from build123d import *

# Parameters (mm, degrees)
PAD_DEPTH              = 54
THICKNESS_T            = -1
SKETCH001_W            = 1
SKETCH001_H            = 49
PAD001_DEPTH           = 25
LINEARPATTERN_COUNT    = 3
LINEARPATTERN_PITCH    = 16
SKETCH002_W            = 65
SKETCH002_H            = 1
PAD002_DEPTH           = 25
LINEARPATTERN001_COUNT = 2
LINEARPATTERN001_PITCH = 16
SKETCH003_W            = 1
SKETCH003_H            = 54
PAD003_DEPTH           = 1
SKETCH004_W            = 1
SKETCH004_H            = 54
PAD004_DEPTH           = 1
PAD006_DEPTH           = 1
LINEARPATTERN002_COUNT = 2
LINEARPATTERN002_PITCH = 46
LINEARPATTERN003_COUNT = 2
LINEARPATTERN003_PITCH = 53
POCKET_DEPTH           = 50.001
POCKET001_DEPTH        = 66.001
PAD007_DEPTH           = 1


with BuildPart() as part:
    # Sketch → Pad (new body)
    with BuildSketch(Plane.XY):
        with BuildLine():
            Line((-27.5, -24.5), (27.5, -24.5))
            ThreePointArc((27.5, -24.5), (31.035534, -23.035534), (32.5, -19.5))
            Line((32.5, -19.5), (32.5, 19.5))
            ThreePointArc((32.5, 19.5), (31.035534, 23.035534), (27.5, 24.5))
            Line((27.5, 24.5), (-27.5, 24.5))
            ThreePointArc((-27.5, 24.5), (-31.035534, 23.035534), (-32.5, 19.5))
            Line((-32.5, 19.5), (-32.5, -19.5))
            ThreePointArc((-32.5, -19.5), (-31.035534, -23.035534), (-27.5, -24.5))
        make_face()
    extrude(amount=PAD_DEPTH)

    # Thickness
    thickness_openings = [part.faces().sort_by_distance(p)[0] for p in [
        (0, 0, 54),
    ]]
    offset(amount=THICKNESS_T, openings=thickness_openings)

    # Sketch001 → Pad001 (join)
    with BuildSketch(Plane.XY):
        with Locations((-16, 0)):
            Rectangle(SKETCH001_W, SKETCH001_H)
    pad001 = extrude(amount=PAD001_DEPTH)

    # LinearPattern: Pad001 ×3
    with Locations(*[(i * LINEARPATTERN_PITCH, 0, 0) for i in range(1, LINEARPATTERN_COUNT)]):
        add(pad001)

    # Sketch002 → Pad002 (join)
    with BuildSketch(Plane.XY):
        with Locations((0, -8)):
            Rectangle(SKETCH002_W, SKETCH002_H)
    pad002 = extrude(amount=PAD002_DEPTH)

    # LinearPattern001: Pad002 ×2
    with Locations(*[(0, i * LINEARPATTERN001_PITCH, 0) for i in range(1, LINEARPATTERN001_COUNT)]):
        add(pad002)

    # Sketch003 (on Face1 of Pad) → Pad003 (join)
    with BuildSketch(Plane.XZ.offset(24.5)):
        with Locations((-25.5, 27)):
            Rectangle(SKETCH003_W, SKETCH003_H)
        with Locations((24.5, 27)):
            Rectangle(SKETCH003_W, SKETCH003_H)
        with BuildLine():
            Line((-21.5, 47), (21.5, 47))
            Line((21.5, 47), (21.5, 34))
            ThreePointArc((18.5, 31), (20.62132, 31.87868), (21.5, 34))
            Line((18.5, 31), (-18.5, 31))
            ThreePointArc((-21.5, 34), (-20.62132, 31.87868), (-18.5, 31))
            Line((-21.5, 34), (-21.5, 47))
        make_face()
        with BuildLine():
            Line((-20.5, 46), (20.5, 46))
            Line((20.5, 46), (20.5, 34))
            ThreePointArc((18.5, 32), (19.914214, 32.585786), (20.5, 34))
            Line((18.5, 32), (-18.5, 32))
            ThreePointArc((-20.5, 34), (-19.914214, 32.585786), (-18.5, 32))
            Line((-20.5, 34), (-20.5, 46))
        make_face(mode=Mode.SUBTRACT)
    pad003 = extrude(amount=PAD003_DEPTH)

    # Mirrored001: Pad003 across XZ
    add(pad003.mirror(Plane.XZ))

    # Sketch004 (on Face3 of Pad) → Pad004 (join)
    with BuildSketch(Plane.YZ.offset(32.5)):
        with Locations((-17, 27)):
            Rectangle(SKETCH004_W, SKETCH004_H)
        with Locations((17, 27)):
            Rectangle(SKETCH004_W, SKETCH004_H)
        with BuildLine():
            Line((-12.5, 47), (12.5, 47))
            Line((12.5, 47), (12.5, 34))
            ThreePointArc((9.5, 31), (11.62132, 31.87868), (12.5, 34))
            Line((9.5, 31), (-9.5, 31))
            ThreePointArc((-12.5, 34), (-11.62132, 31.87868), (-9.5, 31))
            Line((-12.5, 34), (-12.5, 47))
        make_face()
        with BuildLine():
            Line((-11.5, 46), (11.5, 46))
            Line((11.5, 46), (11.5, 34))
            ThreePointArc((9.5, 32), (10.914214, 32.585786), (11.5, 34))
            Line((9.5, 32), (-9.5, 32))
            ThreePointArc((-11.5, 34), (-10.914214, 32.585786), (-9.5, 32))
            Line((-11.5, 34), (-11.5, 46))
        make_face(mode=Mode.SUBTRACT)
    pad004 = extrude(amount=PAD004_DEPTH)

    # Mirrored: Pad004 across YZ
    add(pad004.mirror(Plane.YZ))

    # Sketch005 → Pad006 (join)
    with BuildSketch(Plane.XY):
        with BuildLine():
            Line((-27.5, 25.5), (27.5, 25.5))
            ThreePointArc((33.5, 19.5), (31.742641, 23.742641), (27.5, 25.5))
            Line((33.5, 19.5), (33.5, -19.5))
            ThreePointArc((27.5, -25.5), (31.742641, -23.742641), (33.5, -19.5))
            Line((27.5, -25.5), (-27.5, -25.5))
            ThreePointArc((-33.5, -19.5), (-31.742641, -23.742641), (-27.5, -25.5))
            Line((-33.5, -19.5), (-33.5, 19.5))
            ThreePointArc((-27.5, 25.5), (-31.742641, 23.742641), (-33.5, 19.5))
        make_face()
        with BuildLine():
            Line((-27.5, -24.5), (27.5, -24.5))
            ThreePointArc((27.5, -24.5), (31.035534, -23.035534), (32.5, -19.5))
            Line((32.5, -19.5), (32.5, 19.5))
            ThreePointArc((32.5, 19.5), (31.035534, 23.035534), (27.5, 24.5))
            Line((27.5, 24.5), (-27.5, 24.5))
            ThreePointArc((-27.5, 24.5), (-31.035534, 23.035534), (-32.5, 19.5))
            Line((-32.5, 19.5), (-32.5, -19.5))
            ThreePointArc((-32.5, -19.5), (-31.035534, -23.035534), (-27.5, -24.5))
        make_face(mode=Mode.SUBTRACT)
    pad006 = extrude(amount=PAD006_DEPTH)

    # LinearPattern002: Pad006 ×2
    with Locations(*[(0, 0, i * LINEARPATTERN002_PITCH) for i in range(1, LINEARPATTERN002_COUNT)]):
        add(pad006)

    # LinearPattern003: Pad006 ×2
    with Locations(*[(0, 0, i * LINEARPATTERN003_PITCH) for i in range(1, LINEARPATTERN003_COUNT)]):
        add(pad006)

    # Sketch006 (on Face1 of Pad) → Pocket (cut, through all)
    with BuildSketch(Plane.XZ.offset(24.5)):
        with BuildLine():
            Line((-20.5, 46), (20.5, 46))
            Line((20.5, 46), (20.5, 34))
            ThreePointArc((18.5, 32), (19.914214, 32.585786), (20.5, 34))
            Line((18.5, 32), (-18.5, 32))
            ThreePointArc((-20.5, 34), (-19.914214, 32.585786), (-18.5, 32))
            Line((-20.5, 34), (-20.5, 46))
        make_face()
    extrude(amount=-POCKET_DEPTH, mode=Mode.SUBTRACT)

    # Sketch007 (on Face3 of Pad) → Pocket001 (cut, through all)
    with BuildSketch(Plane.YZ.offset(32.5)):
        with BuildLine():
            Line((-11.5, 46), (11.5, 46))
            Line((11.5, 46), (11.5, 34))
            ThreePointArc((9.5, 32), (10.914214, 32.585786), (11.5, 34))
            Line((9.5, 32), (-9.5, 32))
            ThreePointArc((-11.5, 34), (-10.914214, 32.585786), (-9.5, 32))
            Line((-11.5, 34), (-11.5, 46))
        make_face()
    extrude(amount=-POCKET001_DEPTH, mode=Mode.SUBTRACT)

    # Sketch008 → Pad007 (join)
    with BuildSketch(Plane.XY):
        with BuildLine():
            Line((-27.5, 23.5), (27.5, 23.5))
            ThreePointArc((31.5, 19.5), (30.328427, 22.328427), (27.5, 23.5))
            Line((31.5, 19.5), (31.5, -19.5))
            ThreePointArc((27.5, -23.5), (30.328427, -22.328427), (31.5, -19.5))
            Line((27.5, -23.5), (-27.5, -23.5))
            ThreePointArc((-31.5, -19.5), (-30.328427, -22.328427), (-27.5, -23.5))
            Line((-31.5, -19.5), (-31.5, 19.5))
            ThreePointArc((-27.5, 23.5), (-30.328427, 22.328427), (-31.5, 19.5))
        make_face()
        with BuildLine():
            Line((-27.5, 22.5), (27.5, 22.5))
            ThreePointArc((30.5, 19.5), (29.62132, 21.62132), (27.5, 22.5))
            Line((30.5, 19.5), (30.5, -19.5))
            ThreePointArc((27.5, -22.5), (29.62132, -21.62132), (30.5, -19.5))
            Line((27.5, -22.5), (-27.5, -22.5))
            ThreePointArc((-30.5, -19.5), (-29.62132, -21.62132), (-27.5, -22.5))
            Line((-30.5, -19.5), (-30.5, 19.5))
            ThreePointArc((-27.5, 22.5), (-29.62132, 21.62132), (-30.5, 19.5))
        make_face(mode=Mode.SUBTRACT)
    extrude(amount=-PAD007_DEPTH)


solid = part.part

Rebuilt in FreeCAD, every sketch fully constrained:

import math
import FreeCAD as App
import Part
import Sketcher

V = App.Vector


def faces_at(feature, points):
    """Names of the faces that lie closest to the given points."""
    faces = feature.Shape.Faces
    near = lambda p: min(range(len(faces)), key=lambda i: faces[i].distToShape(Part.Vertex(*p))[0])
    return sorted({f"Face{near(p) + 1}" for p in points})


def add_polygon(sketch, points):
    """Adds a closed chain of lines whose ends are joined by coincident constraints."""
    first, n = sketch.GeometryCount, len(points)
    for a, b in zip(points, points[1:] + points[:1]):
        sketch.addGeometry(Part.LineSegment(App.Vector(*a, 0), App.Vector(*b, 0)), False)
    for i in range(n):
        sketch.addConstraint(Sketcher.Constraint("Coincident", first + i, 2, first + (i + 1) % n, 1))

doc = App.newDocument("Part")
params = doc.addObject("Spreadsheet::Sheet", "Params")
for row, (alias, value) in enumerate([
    ("sketch1_radius", "5 mm"),
    ("sketch1_width", "55 mm"),
    ("sketch1_height", "39 mm"),
    ("pad1_length", "54 mm"),
    ("thickness_wall", "1 mm"),
    ("sketch2_width", "1 mm"),
    ("sketch2_height", "49 mm"),
    ("pad2_length", "25 mm"),
    ("linearpattern_pitch", "16 mm"),
    ("sketch3_width", "65 mm"),
    ("sketch3_height", "1 mm"),
    ("pad3_length", "25 mm"),
    ("linearpattern2_pitch", "16 mm"),
    ("sketch4_radius", "3.000001 mm"),
    ("sketch4_radius2", "1.999999 mm"),
    ("sketch4_width", "1 mm"),
    ("sketch4_width2", "43 mm"),
    ("sketch4_height", "54 mm"),
    ("pad4_length", "1 mm"),
    ("sketch5_radius", "3.000001 mm"),
    ("sketch5_radius2", "1.999999 mm"),
    ("sketch5_width", "1 mm"),
    ("sketch5_width2", "25 mm"),
    ("sketch5_height", "54 mm"),
    ("pad5_length", "1 mm"),
    ("sketch6_radius", "5.999999 mm"),
    ("sketch6_radius2", "5 mm"),
    ("sketch6_width", "55 mm"),
    ("sketch6_height", "39 mm"),
    ("pad6_length", "1 mm"),
    ("linearpattern3_pitch", "46 mm"),
    ("linearpattern4_pitch", "53 mm"),
    ("sketch7_radius", "1.999999 mm"),
    ("sketch7_width", "41 mm"),
    ("sketch7_height", "12 mm"),
    ("sketch8_radius", "1.999999 mm"),
    ("sketch8_width", "23 mm"),
    ("sketch8_height", "12 mm"),
    ("sketch9_radius", "4 mm"),
    ("sketch9_radius2", "3.000001 mm"),
    ("sketch9_width", "55 mm"),
    ("sketch9_height", "39 mm"),
    ("pad7_length", "1 mm"),
], start=1):
    params.set(f"A{row}", alias)
    params.set(f"B{row}", "=" + value)
    params.setAlias(f"B{row}", alias)

body = doc.addObject("PartDesign::Body", "Body")

sketch1 = body.newObject("Sketcher::SketchObject", "Sketch")
sketch1.AttachmentSupport = (doc.getObject("XY_Plane"), [""])
sketch1.MapMode = "FlatFace"
sketch1.addGeometry([
    Part.LineSegment(V(-27.5, -24.5, 0), V(27.5, -24.5, 0)),
    Part.ArcOfCircle(Part.Circle(V(27.5, -19.5, 0), V(0, 0, 1), 5), math.radians(-90.000004), math.radians(0.000004)),
    Part.LineSegment(V(32.5, -19.5, 0), V(32.5, 19.5, 0)),
    Part.ArcOfCircle(Part.Circle(V(27.5, 19.5, 0), V(0, 0, 1), 5), math.radians(-0.000004), math.radians(90.000004)),
    Part.LineSegment(V(27.5, 24.5, 0), V(-27.5, 24.5, 0)),
    Part.ArcOfCircle(Part.Circle(V(-27.5, 19.5, 0), V(0, 0, 1), 5), math.radians(89.999996), math.radians(180.000004)),
    Part.LineSegment(V(-32.5, 19.5, 0), V(-32.5, -19.5, 0)),
    Part.ArcOfCircle(Part.Circle(V(-27.5, -19.5, 0), V(0, 0, 1), 5), math.radians(179.999996), math.radians(270.000004)),
], False)
sketch1.addConstraint([
    Sketcher.Constraint("Tangent", 0, 2, 1, 1),
    Sketcher.Constraint("Tangent", 1, 2, 2, 1),
    Sketcher.Constraint("Tangent", 2, 2, 3, 1),
    Sketcher.Constraint("Tangent", 3, 2, 4, 1),
    Sketcher.Constraint("Tangent", 4, 2, 5, 1),
    Sketcher.Constraint("Tangent", 5, 2, 6, 1),
    Sketcher.Constraint("Tangent", 6, 2, 7, 1),
    Sketcher.Constraint("Tangent", 7, 2, 0, 1),
    Sketcher.Constraint("Horizontal", 0),
    Sketcher.Constraint("Vertical", 2),
    Sketcher.Constraint("Horizontal", 4),
    Sketcher.Constraint("Vertical", 6),
    Sketcher.Constraint("Equal", 1, 3),
    Sketcher.Constraint("Equal", 3, 5),
    Sketcher.Constraint("Equal", 5, 7),
    Sketcher.Constraint("Symmetric", 1, 3, 5, 3, -1, 1),
    Sketcher.Constraint("Radius", 1, 5.0),
    Sketcher.Constraint("DistanceX", 0, 1, 0, 2, 55.0),
    Sketcher.Constraint("DistanceY", 2, 1, 2, 2, 39.0),
])
sketch1.setExpression("Constraints[16]", "Params.sketch1_radius")
sketch1.setExpression("Constraints[17]", "Params.sketch1_width")
sketch1.setExpression("Constraints[18]", "Params.sketch1_height")
pad1 = body.newObject("PartDesign::Pad", "Pad")
pad1.Profile = sketch1
pad1.setExpression("Length", "Params.pad1_length")
doc.recompute()

thickness = body.newObject("PartDesign::Thickness", "Thickness")
thickness.Base = (pad1, faces_at(pad1, [(0, 0, 54)]))
thickness.setExpression("Value", "Params.thickness_wall")
thickness.Reversed = True
thickness.Join = "Arc"

sketch2 = body.newObject("Sketcher::SketchObject", "Sketch001")
sketch2.AttachmentSupport = (doc.getObject("XY_Plane"), [""])
sketch2.MapMode = "FlatFace"
add_polygon(sketch2, [(-16.5, 24.5), (-16.5, -24.5), (-15.5, -24.5), (-15.5, 24.5)])
sketch2.addConstraint([
    Sketcher.Constraint("Vertical", 0),
    Sketcher.Constraint("Horizontal", 1),
    Sketcher.Constraint("Vertical", 2),
    Sketcher.Constraint("Horizontal", 3),
    Sketcher.Constraint("DistanceX", 1, 1, 1, 2, 1.0),
    Sketcher.Constraint("DistanceY", 0, 2, 0, 1, 49.0),
    Sketcher.Constraint("DistanceX", 0, 2, -1, 1, 16.5),
    Sketcher.Constraint("DistanceY", 0, 2, -1, 1, 24.5),
])
sketch2.setExpression("Constraints[8]", "Params.sketch2_width")
sketch2.setExpression("Constraints[9]", "Params.sketch2_height")
pad2 = body.newObject("PartDesign::Pad", "Pad001")
pad2.Profile = sketch2
pad2.setExpression("Length", "Params.pad2_length")
doc.recompute()

linearpattern = body.newObject("PartDesign::LinearPattern", "LinearPattern")
linearpattern.Originals = [pad2]
linearpattern.Direction = (doc.getObject("X_Axis"), [""])
linearpattern.Mode = "offset"
linearpattern.setExpression("Offset", "Params.linearpattern_pitch")
linearpattern.Occurrences = 3
body.Tip = linearpattern

sketch3 = body.newObject("Sketcher::SketchObject", "Sketch002")
sketch3.AttachmentSupport = (doc.getObject("XY_Plane"), [""])
sketch3.MapMode = "FlatFace"
add_polygon(sketch3, [(-32.5, -7.5), (-32.5, -8.5), (32.5, -8.5), (32.5, -7.5)])
sketch3.addConstraint([
    Sketcher.Constraint("Vertical", 0),
    Sketcher.Constraint("Horizontal", 1),
    Sketcher.Constraint("Vertical", 2),
    Sketcher.Constraint("Horizontal", 3),
    Sketcher.Constraint("DistanceX", 1, 1, 1, 2, 65.0),
    Sketcher.Constraint("DistanceY", 0, 2, 0, 1, 1.0),
    Sketcher.Constraint("DistanceX", 0, 2, -1, 1, 32.5),
    Sketcher.Constraint("DistanceY", 0, 2, -1, 1, 8.5),
])
sketch3.setExpression("Constraints[8]", "Params.sketch3_width")
sketch3.setExpression("Constraints[9]", "Params.sketch3_height")
pad3 = body.newObject("PartDesign::Pad", "Pad002")
pad3.Profile = sketch3
pad3.setExpression("Length", "Params.pad3_length")
doc.recompute()

linearpattern2 = body.newObject("PartDesign::LinearPattern", "LinearPattern001")
linearpattern2.Originals = [pad3]
linearpattern2.Direction = (doc.getObject("Y_Axis"), [""])
linearpattern2.Mode = "offset"
linearpattern2.setExpression("Offset", "Params.linearpattern2_pitch")
linearpattern2.Occurrences = 2
body.Tip = linearpattern2

sketch4 = body.newObject("Sketcher::SketchObject", "Sketch003")
sketch4.AttachmentSupport = (doc.getObject("XZ_Plane"), [""])
sketch4.MapMode = "FlatFace"
sketch4.AttachmentOffset = App.Placement(V(0, 0, 24.5), App.Rotation())
add_polygon(sketch4, [(-26, 54), (-26, 0), (-25, 0), (-25, 54)])
add_polygon(sketch4, [(24, 54), (24, 0), (25, 0), (25, 54)])
sketch4.addGeometry(Part.LineSegment(V(21.5, 47, 0), V(-21.5, 47, 0)), False)
sketch4.addGeometry(Part.LineSegment(V(-21.5, 47, 0), V(-21.5, 34, 0)), False)
sketch4.addGeometry(Part.ArcOfCircle(Part.Circle(V(-18.499999, 34.000001, 0), V(0, 0, 1), 3.000001), math.radians(-179.999978), math.radians(-90.000022)), False)
sketch4.addGeometry(Part.LineSegment(V(-18.5, 31, 0), V(18.5, 31, 0)), False)
sketch4.addGeometry(Part.ArcOfCircle(Part.Circle(V(18.499999, 34.000001, 0), V(0, 0, 1), 3.000001), math.radians(-89.999978), math.radians(-0.000022)), False)
sketch4.addGeometry(Part.LineSegment(V(21.5, 34, 0), V(21.5, 47, 0)), False)
sketch4.addGeometry(Part.LineSegment(V(-20.5, 46, 0), V(20.5, 46, 0)), False)
sketch4.addGeometry(Part.LineSegment(V(20.5, 46, 0), V(20.5, 34, 0)), False)
sketch4.addGeometry(Part.ArcOfCircle(Part.Circle(V(18.500001, 33.999999, 0), V(0, 0, 1), 1.999999), math.radians(-90.000043), math.radians(0.000043)), False)
sketch4.addGeometry(Part.LineSegment(V(18.5, 32, 0), V(-18.5, 32, 0)), False)
sketch4.addGeometry(Part.ArcOfCircle(Part.Circle(V(-18.500001, 33.999999, 0), V(0, 0, 1), 1.999999), math.radians(179.999957), math.radians(270.000043)), False)
sketch4.addGeometry(Part.LineSegment(V(-20.5, 34, 0), V(-20.5, 46, 0)), False)
sketch4.addConstraint([
    Sketcher.Constraint("Coincident", 8, 2, 9, 1),
    Sketcher.Constraint("Tangent", 9, 2, 10, 1),
    Sketcher.Constraint("Tangent", 10, 2, 11, 1),
    Sketcher.Constraint("Tangent", 11, 2, 12, 1),
    Sketcher.Constraint("Tangent", 12, 2, 13, 1),
    Sketcher.Constraint("Coincident", 13, 2, 8, 1),
    Sketcher.Constraint("Coincident", 14, 2, 15, 1),
    Sketcher.Constraint("Tangent", 15, 2, 16, 2),
    Sketcher.Constraint("Tangent", 16, 1, 17, 1),
    Sketcher.Constraint("Tangent", 17, 2, 18, 2),
    Sketcher.Constraint("Tangent", 18, 1, 19, 1),
    Sketcher.Constraint("Coincident", 19, 2, 14, 1),
    Sketcher.Constraint("Vertical", 0),
    Sketcher.Constraint("Horizontal", 1),
    Sketcher.Constraint("Vertical", 2),
    Sketcher.Constraint("Horizontal", 3),
    Sketcher.Constraint("Vertical", 4),
    Sketcher.Constraint("Horizontal", 5),
    Sketcher.Constraint("Vertical", 6),
    Sketcher.Constraint("Horizontal", 7),
    Sketcher.Constraint("Horizontal", 8),
    Sketcher.Constraint("Vertical", 9),
    Sketcher.Constraint("Horizontal", 11),
    Sketcher.Constraint("Vertical", 13),
    Sketcher.Constraint("Horizontal", 14),
    Sketcher.Constraint("Vertical", 15),
    Sketcher.Constraint("Horizontal", 17),
    Sketcher.Constraint("Vertical", 19),
    Sketcher.Constraint("Coincident", 16, 3, 12, 3),
    Sketcher.Constraint("Coincident", 18, 3, 10, 3),
    Sketcher.Constraint("Equal", 10, 12),
    Sketcher.Constraint("Symmetric", 1, 2, 5, 2, -1, 1),
    Sketcher.Constraint("PointOnObject", 0, 2, -1),
    Sketcher.Constraint("Horizontal", 3, 2, 6, 2),
    Sketcher.Constraint("Equal", 3, 5),
    Sketcher.Constraint("Radius", 10, 3.000001),
    Sketcher.Constraint("Radius", 16, 1.999999),
    Sketcher.Constraint("DistanceX", 1, 1, 1, 2, 1.0),
    Sketcher.Constraint("DistanceX", 8, 2, 8, 1, 43.0),
    Sketcher.Constraint("DistanceY", 0, 2, 0, 1, 54.0),
    Sketcher.Constraint("DistanceY", 9, 2, 9, 1, 13.0),
    Sketcher.Constraint("DistanceY", 15, 2, 15, 1, 12.0),
    Sketcher.Constraint("DistanceY", -1, 1, 10, 3, 34.000001),
    Sketcher.Constraint("DistanceX", 0, 2, -1, 1, 26.0),
    Sketcher.Constraint("DistanceX", 10, 3, -1, 1, 18.499999),
])
sketch4.setExpression("Constraints[43]", "Params.sketch4_radius")
sketch4.setExpression("Constraints[44]", "Params.sketch4_radius2")
sketch4.setExpression("Constraints[45]", "Params.sketch4_width")
sketch4.setExpression("Constraints[46]", "Params.sketch4_width2")
sketch4.setExpression("Constraints[47]", "Params.sketch4_height")
pad4 = body.newObject("PartDesign::Pad", "Pad003")
pad4.Profile = sketch4
pad4.setExpression("Length", "Params.pad4_length")
doc.recompute()

mirrored = body.newObject("PartDesign::Mirrored", "Mirrored")
mirrored.Originals = [pad4]
mirrored.MirrorPlane = (doc.getObject("XZ_Plane"), [""])
body.Tip = mirrored

sketch5 = body.newObject("Sketcher::SketchObject", "Sketch004")
sketch5.AttachmentSupport = (doc.getObject("YZ_Plane"), [""])
sketch5.MapMode = "FlatFace"
sketch5.AttachmentOffset = App.Placement(V(0, 0, 32.5), App.Rotation())
add_polygon(sketch5, [(-17.5, 54), (-17.5, 0), (-16.5, 0), (-16.5, 54)])
add_polygon(sketch5, [(16.5, 54), (16.5, 0), (17.5, 0), (17.5, 54)])
sketch5.addGeometry(Part.LineSegment(V(12.5, 47, 0), V(-12.5, 47, 0)), False)
sketch5.addGeometry(Part.LineSegment(V(-12.5, 47, 0), V(-12.5, 34, 0)), False)
sketch5.addGeometry(Part.ArcOfCircle(Part.Circle(V(-9.499999, 34.000001, 0), V(0, 0, 1), 3.000001), math.radians(-179.999978), math.radians(-90.000022)), False)
sketch5.addGeometry(Part.LineSegment(V(-9.5, 31, 0), V(9.5, 31, 0)), False)
sketch5.addGeometry(Part.ArcOfCircle(Part.Circle(V(9.499999, 34.000001, 0), V(0, 0, 1), 3.000001), math.radians(-89.999978), math.radians(-0.000022)), False)
sketch5.addGeometry(Part.LineSegment(V(12.5, 34, 0), V(12.5, 47, 0)), False)
sketch5.addGeometry(Part.LineSegment(V(-11.5, 46, 0), V(11.5, 46, 0)), False)
sketch5.addGeometry(Part.LineSegment(V(11.5, 46, 0), V(11.5, 34, 0)), False)
sketch5.addGeometry(Part.ArcOfCircle(Part.Circle(V(9.500001, 33.999999, 0), V(0, 0, 1), 1.999999), math.radians(-90.000043), math.radians(0.000043)), False)
sketch5.addGeometry(Part.LineSegment(V(9.5, 32, 0), V(-9.5, 32, 0)), False)
sketch5.addGeometry(Part.ArcOfCircle(Part.Circle(V(-9.500001, 33.999999, 0), V(0, 0, 1), 1.999999), math.radians(179.999957), math.radians(270.000043)), False)
sketch5.addGeometry(Part.LineSegment(V(-11.5, 34, 0), V(-11.5, 46, 0)), False)
sketch5.addConstraint([
    Sketcher.Constraint("Coincident", 8, 2, 9, 1),
    Sketcher.Constraint("Tangent", 9, 2, 10, 1),
    Sketcher.Constraint("Tangent", 10, 2, 11, 1),
    Sketcher.Constraint("Tangent", 11, 2, 12, 1),
    Sketcher.Constraint("Tangent", 12, 2, 13, 1),
    Sketcher.Constraint("Coincident", 13, 2, 8, 1),
    Sketcher.Constraint("Coincident", 14, 2, 15, 1),
    Sketcher.Constraint("Tangent", 15, 2, 16, 2),
    Sketcher.Constraint("Tangent", 16, 1, 17, 1),
    Sketcher.Constraint("Tangent", 17, 2, 18, 2),
    Sketcher.Constraint("Tangent", 18, 1, 19, 1),
    Sketcher.Constraint("Coincident", 19, 2, 14, 1),
    Sketcher.Constraint("Vertical", 0),
    Sketcher.Constraint("Horizontal", 1),
    Sketcher.Constraint("Vertical", 2),
    Sketcher.Constraint("Horizontal", 3),
    Sketcher.Constraint("Vertical", 4),
    Sketcher.Constraint("Horizontal", 5),
    Sketcher.Constraint("Vertical", 6),
    Sketcher.Constraint("Horizontal", 7),
    Sketcher.Constraint("Horizontal", 8),
    Sketcher.Constraint("Vertical", 9),
    Sketcher.Constraint("Horizontal", 11),
    Sketcher.Constraint("Vertical", 13),
    Sketcher.Constraint("Horizontal", 14),
    Sketcher.Constraint("Vertical", 15),
    Sketcher.Constraint("Horizontal", 17),
    Sketcher.Constraint("Vertical", 19),
    Sketcher.Constraint("Coincident", 16, 3, 12, 3),
    Sketcher.Constraint("Coincident", 18, 3, 10, 3),
    Sketcher.Constraint("Equal", 10, 12),
    Sketcher.Constraint("Symmetric", 1, 2, 4, 2, -1, 1),
    Sketcher.Constraint("Symmetric", 0, 2, 5, 2, -2),
    Sketcher.Constraint("Horizontal", 3, 2, 6, 2),
    Sketcher.Constraint("Radius", 10, 3.000001),
    Sketcher.Constraint("Radius", 16, 1.999999),
    Sketcher.Constraint("DistanceX", 1, 1, 1, 2, 1.0),
    Sketcher.Constraint("DistanceX", 8, 2, 8, 1, 25.0),
    Sketcher.Constraint("DistanceY", 0, 2, 0, 1, 54.0),
    Sketcher.Constraint("DistanceY", 9, 2, 9, 1, 13.0),
    Sketcher.Constraint("DistanceY", 15, 2, 15, 1, 12.0),
    Sketcher.Constraint("DistanceY", -1, 1, 10, 3, 34.000001),
    Sketcher.Constraint("DistanceX", 0, 2, 18, 3, 7.999999),
    Sketcher.Constraint("DistanceX", 1, 2, 4, 2, 33.0),
])
sketch5.setExpression("Constraints[42]", "Params.sketch5_radius")
sketch5.setExpression("Constraints[43]", "Params.sketch5_radius2")
sketch5.setExpression("Constraints[44]", "Params.sketch5_width")
sketch5.setExpression("Constraints[45]", "Params.sketch5_width2")
sketch5.setExpression("Constraints[46]", "Params.sketch5_height")
pad5 = body.newObject("PartDesign::Pad", "Pad004")
pad5.Profile = sketch5
pad5.setExpression("Length", "Params.pad5_length")
doc.recompute()

mirrored2 = body.newObject("PartDesign::Mirrored", "Mirrored001")
mirrored2.Originals = [pad5]
mirrored2.MirrorPlane = (doc.getObject("YZ_Plane"), [""])
body.Tip = mirrored2

sketch6 = body.newObject("Sketcher::SketchObject", "Sketch005")
sketch6.AttachmentSupport = (doc.getObject("XY_Plane"), [""])
sketch6.MapMode = "FlatFace"
sketch6.addGeometry([
    Part.LineSegment(V(27.5, 25.5, 0), V(-27.5, 25.5, 0)),
    Part.ArcOfCircle(Part.Circle(V(-27.500001, 19.500001, 0), V(0, 0, 1), 5.999999), math.radians(89.99999), math.radians(180.00001)),
    Part.LineSegment(V(-33.5, 19.5, 0), V(-33.5, -19.5, 0)),
    Part.ArcOfCircle(Part.Circle(V(-27.500001, -19.500001, 0), V(0, 0, 1), 5.999999), math.radians(179.99999), math.radians(270.00001)),
    Part.LineSegment(V(-27.5, -25.5, 0), V(27.5, -25.5, 0)),
    Part.ArcOfCircle(Part.Circle(V(27.500001, -19.500001, 0), V(0, 0, 1), 5.999999), math.radians(-90.00001), math.radians(0.00001)),
    Part.LineSegment(V(33.5, -19.5, 0), V(33.5, 19.5, 0)),
    Part.ArcOfCircle(Part.Circle(V(27.500001, 19.500001, 0), V(0, 0, 1), 5.999999), math.radians(-0.00001), math.radians(90.00001)),
    Part.ArcOfCircle(Part.Circle(V(-27.5, -19.5, 0), V(0, 0, 1), 5), math.radians(179.999996), math.radians(270.000004)),
    Part.LineSegment(V(-32.5, -19.5, 0), V(-32.5, 19.5, 0)),
    Part.ArcOfCircle(Part.Circle(V(-27.5, 19.5, 0), V(0, 0, 1), 5), math.radians(89.999996), math.radians(180.000004)),
    Part.LineSegment(V(-27.5, 24.5, 0), V(27.5, 24.5, 0)),
    Part.ArcOfCircle(Part.Circle(V(27.5, 19.5, 0), V(0, 0, 1), 5), math.radians(-0.000004), math.radians(90.000004)),
    Part.LineSegment(V(32.5, 19.5, 0), V(32.5, -19.5, 0)),
    Part.ArcOfCircle(Part.Circle(V(27.5, -19.5, 0), V(0, 0, 1), 5), math.radians(-90.000004), math.radians(0.000004)),
    Part.LineSegment(V(27.5, -24.5, 0), V(-27.5, -24.5, 0)),
], False)
sketch6.addConstraint([
    Sketcher.Constraint("Tangent", 0, 2, 1, 1),
    Sketcher.Constraint("Tangent", 1, 2, 2, 1),
    Sketcher.Constraint("Tangent", 2, 2, 3, 1),
    Sketcher.Constraint("Tangent", 3, 2, 4, 1),
    Sketcher.Constraint("Tangent", 4, 2, 5, 1),
    Sketcher.Constraint("Tangent", 5, 2, 6, 1),
    Sketcher.Constraint("Tangent", 6, 2, 7, 1),
    Sketcher.Constraint("Tangent", 7, 2, 0, 1),
    Sketcher.Constraint("Tangent", 8, 1, 9, 1),
    Sketcher.Constraint("Tangent", 9, 2, 10, 2),
    Sketcher.Constraint("Tangent", 10, 1, 11, 1),
    Sketcher.Constraint("Tangent", 11, 2, 12, 2),
    Sketcher.Constraint("Tangent", 12, 1, 13, 1),
    Sketcher.Constraint("Tangent", 13, 2, 14, 2),
    Sketcher.Constraint("Tangent", 14, 1, 15, 1),
    Sketcher.Constraint("Tangent", 15, 2, 8, 2),
    Sketcher.Constraint("Horizontal", 0),
    Sketcher.Constraint("Vertical", 2),
    Sketcher.Constraint("Horizontal", 4),
    Sketcher.Constraint("Vertical", 6),
    Sketcher.Constraint("Vertical", 9),
    Sketcher.Constraint("Horizontal", 11),
    Sketcher.Constraint("Vertical", 13),
    Sketcher.Constraint("Horizontal", 15),
    Sketcher.Constraint("Coincident", 8, 3, 3, 3),
    Sketcher.Constraint("Coincident", 10, 3, 1, 3),
    Sketcher.Constraint("Coincident", 12, 3, 7, 3),
    Sketcher.Constraint("Equal", 1, 3),
    Sketcher.Constraint("Equal", 3, 5),
    Sketcher.Constraint("Equal", 5, 7),
    Sketcher.Constraint("Equal", 12, 14),
    Sketcher.Constraint("Symmetric", 1, 3, 5, 3, -1, 1),
    Sketcher.Constraint("Radius", 1, 5.999999),
    Sketcher.Constraint("Radius", 8, 5.0),
    Sketcher.Constraint("DistanceX", 0, 2, 0, 1, 55.0),
    Sketcher.Constraint("DistanceY", 2, 2, 2, 1, 39.0),
])
sketch6.setExpression("Constraints[32]", "Params.sketch6_radius")
sketch6.setExpression("Constraints[33]", "Params.sketch6_radius2")
sketch6.setExpression("Constraints[34]", "Params.sketch6_width")
sketch6.setExpression("Constraints[35]", "Params.sketch6_height")
pad6 = body.newObject("PartDesign::Pad", "Pad005")
pad6.Profile = sketch6
pad6.setExpression("Length", "Params.pad6_length")
doc.recompute()

linearpattern3 = body.newObject("PartDesign::LinearPattern", "LinearPattern002")
linearpattern3.Originals = [pad6]
linearpattern3.Direction = (doc.getObject("Z_Axis"), [""])
linearpattern3.Mode = "offset"
linearpattern3.setExpression("Offset", "Params.linearpattern3_pitch")
linearpattern3.Occurrences = 2
body.Tip = linearpattern3
doc.recompute()

linearpattern4 = body.newObject("PartDesign::LinearPattern", "LinearPattern003")
linearpattern4.Originals = [pad6]
linearpattern4.Direction = (doc.getObject("Z_Axis"), [""])
linearpattern4.Mode = "offset"
linearpattern4.setExpression("Offset", "Params.linearpattern4_pitch")
linearpattern4.Occurrences = 2
body.Tip = linearpattern4

sketch7 = body.newObject("Sketcher::SketchObject", "Sketch006")
sketch7.AttachmentSupport = (doc.getObject("XZ_Plane"), [""])
sketch7.MapMode = "FlatFace"
sketch7.AttachmentOffset = App.Placement(V(0, 0, 24.5), App.Rotation())
sketch7.addGeometry([
    Part.LineSegment(V(20.5, 46, 0), V(-20.5, 46, 0)),
    Part.LineSegment(V(-20.5, 46, 0), V(-20.5, 34, 0)),
    Part.ArcOfCircle(Part.Circle(V(-18.500001, 33.999999, 0), V(0, 0, 1), 1.999999), math.radians(179.999957), math.radians(270.000043)),
    Part.LineSegment(V(-18.5, 32, 0), V(18.5, 32, 0)),
    Part.ArcOfCircle(Part.Circle(V(18.500001, 33.999999, 0), V(0, 0, 1), 1.999999), math.radians(-90.000043), math.radians(0.000043)),
    Part.LineSegment(V(20.5, 34, 0), V(20.5, 46, 0)),
], False)
sketch7.addConstraint([
    Sketcher.Constraint("Coincident", 0, 2, 1, 1),
    Sketcher.Constraint("Tangent", 1, 2, 2, 1),
    Sketcher.Constraint("Tangent", 2, 2, 3, 1),
    Sketcher.Constraint("Tangent", 3, 2, 4, 1),
    Sketcher.Constraint("Tangent", 4, 2, 5, 1),
    Sketcher.Constraint("Coincident", 5, 2, 0, 1),
    Sketcher.Constraint("Horizontal", 0),
    Sketcher.Constraint("Vertical", 1),
    Sketcher.Constraint("Horizontal", 3),
    Sketcher.Constraint("Vertical", 5),
    Sketcher.Constraint("Equal", 2, 4),
    Sketcher.Constraint("Radius", 2, 1.999999),
    Sketcher.Constraint("DistanceX", 0, 2, 0, 1, 41.0),
    Sketcher.Constraint("DistanceY", 1, 2, 1, 1, 12.0),
    Sketcher.Constraint("DistanceY", -1, 1, 2, 3, 33.999999),
    Sketcher.Constraint("DistanceX", 2, 3, -1, 1, 18.500001),
])
sketch7.setExpression("Constraints[11]", "Params.sketch7_radius")
sketch7.setExpression("Constraints[12]", "Params.sketch7_width")
sketch7.setExpression("Constraints[13]", "Params.sketch7_height")
pocket1 = body.newObject("PartDesign::Pocket", "Pocket")
pocket1.Profile = sketch7
pocket1.Type = "ThroughAll"

sketch8 = body.newObject("Sketcher::SketchObject", "Sketch007")
sketch8.AttachmentSupport = (doc.getObject("YZ_Plane"), [""])
sketch8.MapMode = "FlatFace"
sketch8.AttachmentOffset = App.Placement(V(0, 0, 32.5), App.Rotation())
sketch8.addGeometry([
    Part.LineSegment(V(11.5, 46, 0), V(-11.5, 46, 0)),
    Part.LineSegment(V(-11.5, 46, 0), V(-11.5, 34, 0)),
    Part.ArcOfCircle(Part.Circle(V(-9.500001, 33.999999, 0), V(0, 0, 1), 1.999999), math.radians(179.999957), math.radians(270.000043)),
    Part.LineSegment(V(-9.5, 32, 0), V(9.5, 32, 0)),
    Part.ArcOfCircle(Part.Circle(V(9.500001, 33.999999, 0), V(0, 0, 1), 1.999999), math.radians(-90.000043), math.radians(0.000043)),
    Part.LineSegment(V(11.5, 34, 0), V(11.5, 46, 0)),
], False)
sketch8.addConstraint([
    Sketcher.Constraint("Coincident", 0, 2, 1, 1),
    Sketcher.Constraint("Tangent", 1, 2, 2, 1),
    Sketcher.Constraint("Tangent", 2, 2, 3, 1),
    Sketcher.Constraint("Tangent", 3, 2, 4, 1),
    Sketcher.Constraint("Tangent", 4, 2, 5, 1),
    Sketcher.Constraint("Coincident", 5, 2, 0, 1),
    Sketcher.Constraint("Horizontal", 0),
    Sketcher.Constraint("Vertical", 1),
    Sketcher.Constraint("Horizontal", 3),
    Sketcher.Constraint("Vertical", 5),
    Sketcher.Constraint("Equal", 2, 4),
    Sketcher.Constraint("Radius", 2, 1.999999),
    Sketcher.Constraint("DistanceX", 0, 2, 0, 1, 23.0),
    Sketcher.Constraint("DistanceY", 1, 2, 1, 1, 12.0),
    Sketcher.Constraint("DistanceY", -1, 1, 2, 3, 33.999999),
    Sketcher.Constraint("DistanceX", 2, 3, -1, 1, 9.500001),
])
sketch8.setExpression("Constraints[11]", "Params.sketch8_radius")
sketch8.setExpression("Constraints[12]", "Params.sketch8_width")
sketch8.setExpression("Constraints[13]", "Params.sketch8_height")
pocket2 = body.newObject("PartDesign::Pocket", "Pocket001")
pocket2.Profile = sketch8
pocket2.Type = "ThroughAll"

sketch9 = body.newObject("Sketcher::SketchObject", "Sketch008")
sketch9.AttachmentSupport = (doc.getObject("XY_Plane"), [""])
sketch9.MapMode = "FlatFace"
sketch9.addGeometry([
    Part.LineSegment(V(27.5, 23.5, 0), V(-27.5, 23.5, 0)),
    Part.ArcOfCircle(Part.Circle(V(-27.5, 19.5, 0), V(0, 0, 1), 4), math.radians(90.000006), math.radians(179.999994)),
    Part.LineSegment(V(-31.5, 19.5, 0), V(-31.5, -19.5, 0)),
    Part.ArcOfCircle(Part.Circle(V(-27.5, -19.5, 0), V(0, 0, 1), 4), math.radians(-179.999994), math.radians(-90.000006)),
    Part.LineSegment(V(-27.5, -23.5, 0), V(27.5, -23.5, 0)),
    Part.ArcOfCircle(Part.Circle(V(27.5, -19.5, 0), V(0, 0, 1), 4), math.radians(-89.999994), math.radians(-0.000006)),
    Part.LineSegment(V(31.5, -19.5, 0), V(31.5, 19.5, 0)),
    Part.ArcOfCircle(Part.Circle(V(27.5, 19.5, 0), V(0, 0, 1), 4), math.radians(0.000006), math.radians(89.999994)),
    Part.LineSegment(V(-27.5, 22.5, 0), V(27.5, 22.5, 0)),
    Part.ArcOfCircle(Part.Circle(V(27.499999, 19.499999, 0), V(0, 0, 1), 3.000001), math.radians(0.000022), math.radians(89.999978)),
    Part.LineSegment(V(30.5, 19.5, 0), V(30.5, -19.5, 0)),
    Part.ArcOfCircle(Part.Circle(V(27.499999, -19.499999, 0), V(0, 0, 1), 3.000001), math.radians(-89.999978), math.radians(-0.000022)),
    Part.LineSegment(V(27.5, -22.5, 0), V(-27.5, -22.5, 0)),
    Part.ArcOfCircle(Part.Circle(V(-27.499999, -19.499999, 0), V(0, 0, 1), 3.000001), math.radians(-179.999978), math.radians(-90.000022)),
    Part.LineSegment(V(-30.5, -19.5, 0), V(-30.5, 19.5, 0)),
    Part.ArcOfCircle(Part.Circle(V(-27.499999, 19.499999, 0), V(0, 0, 1), 3.000001), math.radians(90.000022), math.radians(179.999978)),
], False)
sketch9.addConstraint([
    Sketcher.Constraint("Tangent", 0, 2, 1, 1),
    Sketcher.Constraint("Tangent", 1, 2, 2, 1),
    Sketcher.Constraint("Tangent", 2, 2, 3, 1),
    Sketcher.Constraint("Tangent", 3, 2, 4, 1),
    Sketcher.Constraint("Tangent", 4, 2, 5, 1),
    Sketcher.Constraint("Tangent", 5, 2, 6, 1),
    Sketcher.Constraint("Tangent", 6, 2, 7, 1),
    Sketcher.Constraint("Tangent", 7, 2, 0, 1),
    Sketcher.Constraint("Tangent", 8, 2, 9, 2),
    Sketcher.Constraint("Tangent", 9, 1, 10, 1),
    Sketcher.Constraint("Tangent", 10, 2, 11, 2),
    Sketcher.Constraint("Tangent", 11, 1, 12, 1),
    Sketcher.Constraint("Tangent", 12, 2, 13, 2),
    Sketcher.Constraint("Tangent", 13, 1, 14, 1),
    Sketcher.Constraint("Tangent", 14, 2, 15, 2),
    Sketcher.Constraint("Tangent", 15, 1, 8, 1),
    Sketcher.Constraint("Horizontal", 0),
    Sketcher.Constraint("Vertical", 2),
    Sketcher.Constraint("Horizontal", 4),
    Sketcher.Constraint("Vertical", 6),
    Sketcher.Constraint("Horizontal", 8),
    Sketcher.Constraint("Vertical", 10),
    Sketcher.Constraint("Horizontal", 12),
    Sketcher.Constraint("Vertical", 14),
    Sketcher.Constraint("Coincident", 9, 3, 7, 3),
    Sketcher.Constraint("Coincident", 11, 3, 5, 3),
    Sketcher.Constraint("Coincident", 13, 3, 3, 3),
    Sketcher.Constraint("Equal", 1, 3),
    Sketcher.Constraint("Equal", 3, 5),
    Sketcher.Constraint("Equal", 5, 7),
    Sketcher.Constraint("Equal", 13, 15),
    Sketcher.Constraint("Symmetric", 1, 3, 5, 3, -1, 1),
    Sketcher.Constraint("Radius", 1, 4.0),
    Sketcher.Constraint("Radius", 9, 3.000001),
    Sketcher.Constraint("DistanceX", 0, 2, 0, 1, 55.0),
    Sketcher.Constraint("DistanceY", 2, 2, 2, 1, 39.0),
])
sketch9.setExpression("Constraints[32]", "Params.sketch9_radius")
sketch9.setExpression("Constraints[33]", "Params.sketch9_radius2")
sketch9.setExpression("Constraints[34]", "Params.sketch9_width")
sketch9.setExpression("Constraints[35]", "Params.sketch9_height")
pad7 = body.newObject("PartDesign::Pad", "Pad006")
pad7.Profile = sketch9
pad7.setExpression("Length", "Params.pad7_length")
pad7.Reversed = True

doc.recompute()
